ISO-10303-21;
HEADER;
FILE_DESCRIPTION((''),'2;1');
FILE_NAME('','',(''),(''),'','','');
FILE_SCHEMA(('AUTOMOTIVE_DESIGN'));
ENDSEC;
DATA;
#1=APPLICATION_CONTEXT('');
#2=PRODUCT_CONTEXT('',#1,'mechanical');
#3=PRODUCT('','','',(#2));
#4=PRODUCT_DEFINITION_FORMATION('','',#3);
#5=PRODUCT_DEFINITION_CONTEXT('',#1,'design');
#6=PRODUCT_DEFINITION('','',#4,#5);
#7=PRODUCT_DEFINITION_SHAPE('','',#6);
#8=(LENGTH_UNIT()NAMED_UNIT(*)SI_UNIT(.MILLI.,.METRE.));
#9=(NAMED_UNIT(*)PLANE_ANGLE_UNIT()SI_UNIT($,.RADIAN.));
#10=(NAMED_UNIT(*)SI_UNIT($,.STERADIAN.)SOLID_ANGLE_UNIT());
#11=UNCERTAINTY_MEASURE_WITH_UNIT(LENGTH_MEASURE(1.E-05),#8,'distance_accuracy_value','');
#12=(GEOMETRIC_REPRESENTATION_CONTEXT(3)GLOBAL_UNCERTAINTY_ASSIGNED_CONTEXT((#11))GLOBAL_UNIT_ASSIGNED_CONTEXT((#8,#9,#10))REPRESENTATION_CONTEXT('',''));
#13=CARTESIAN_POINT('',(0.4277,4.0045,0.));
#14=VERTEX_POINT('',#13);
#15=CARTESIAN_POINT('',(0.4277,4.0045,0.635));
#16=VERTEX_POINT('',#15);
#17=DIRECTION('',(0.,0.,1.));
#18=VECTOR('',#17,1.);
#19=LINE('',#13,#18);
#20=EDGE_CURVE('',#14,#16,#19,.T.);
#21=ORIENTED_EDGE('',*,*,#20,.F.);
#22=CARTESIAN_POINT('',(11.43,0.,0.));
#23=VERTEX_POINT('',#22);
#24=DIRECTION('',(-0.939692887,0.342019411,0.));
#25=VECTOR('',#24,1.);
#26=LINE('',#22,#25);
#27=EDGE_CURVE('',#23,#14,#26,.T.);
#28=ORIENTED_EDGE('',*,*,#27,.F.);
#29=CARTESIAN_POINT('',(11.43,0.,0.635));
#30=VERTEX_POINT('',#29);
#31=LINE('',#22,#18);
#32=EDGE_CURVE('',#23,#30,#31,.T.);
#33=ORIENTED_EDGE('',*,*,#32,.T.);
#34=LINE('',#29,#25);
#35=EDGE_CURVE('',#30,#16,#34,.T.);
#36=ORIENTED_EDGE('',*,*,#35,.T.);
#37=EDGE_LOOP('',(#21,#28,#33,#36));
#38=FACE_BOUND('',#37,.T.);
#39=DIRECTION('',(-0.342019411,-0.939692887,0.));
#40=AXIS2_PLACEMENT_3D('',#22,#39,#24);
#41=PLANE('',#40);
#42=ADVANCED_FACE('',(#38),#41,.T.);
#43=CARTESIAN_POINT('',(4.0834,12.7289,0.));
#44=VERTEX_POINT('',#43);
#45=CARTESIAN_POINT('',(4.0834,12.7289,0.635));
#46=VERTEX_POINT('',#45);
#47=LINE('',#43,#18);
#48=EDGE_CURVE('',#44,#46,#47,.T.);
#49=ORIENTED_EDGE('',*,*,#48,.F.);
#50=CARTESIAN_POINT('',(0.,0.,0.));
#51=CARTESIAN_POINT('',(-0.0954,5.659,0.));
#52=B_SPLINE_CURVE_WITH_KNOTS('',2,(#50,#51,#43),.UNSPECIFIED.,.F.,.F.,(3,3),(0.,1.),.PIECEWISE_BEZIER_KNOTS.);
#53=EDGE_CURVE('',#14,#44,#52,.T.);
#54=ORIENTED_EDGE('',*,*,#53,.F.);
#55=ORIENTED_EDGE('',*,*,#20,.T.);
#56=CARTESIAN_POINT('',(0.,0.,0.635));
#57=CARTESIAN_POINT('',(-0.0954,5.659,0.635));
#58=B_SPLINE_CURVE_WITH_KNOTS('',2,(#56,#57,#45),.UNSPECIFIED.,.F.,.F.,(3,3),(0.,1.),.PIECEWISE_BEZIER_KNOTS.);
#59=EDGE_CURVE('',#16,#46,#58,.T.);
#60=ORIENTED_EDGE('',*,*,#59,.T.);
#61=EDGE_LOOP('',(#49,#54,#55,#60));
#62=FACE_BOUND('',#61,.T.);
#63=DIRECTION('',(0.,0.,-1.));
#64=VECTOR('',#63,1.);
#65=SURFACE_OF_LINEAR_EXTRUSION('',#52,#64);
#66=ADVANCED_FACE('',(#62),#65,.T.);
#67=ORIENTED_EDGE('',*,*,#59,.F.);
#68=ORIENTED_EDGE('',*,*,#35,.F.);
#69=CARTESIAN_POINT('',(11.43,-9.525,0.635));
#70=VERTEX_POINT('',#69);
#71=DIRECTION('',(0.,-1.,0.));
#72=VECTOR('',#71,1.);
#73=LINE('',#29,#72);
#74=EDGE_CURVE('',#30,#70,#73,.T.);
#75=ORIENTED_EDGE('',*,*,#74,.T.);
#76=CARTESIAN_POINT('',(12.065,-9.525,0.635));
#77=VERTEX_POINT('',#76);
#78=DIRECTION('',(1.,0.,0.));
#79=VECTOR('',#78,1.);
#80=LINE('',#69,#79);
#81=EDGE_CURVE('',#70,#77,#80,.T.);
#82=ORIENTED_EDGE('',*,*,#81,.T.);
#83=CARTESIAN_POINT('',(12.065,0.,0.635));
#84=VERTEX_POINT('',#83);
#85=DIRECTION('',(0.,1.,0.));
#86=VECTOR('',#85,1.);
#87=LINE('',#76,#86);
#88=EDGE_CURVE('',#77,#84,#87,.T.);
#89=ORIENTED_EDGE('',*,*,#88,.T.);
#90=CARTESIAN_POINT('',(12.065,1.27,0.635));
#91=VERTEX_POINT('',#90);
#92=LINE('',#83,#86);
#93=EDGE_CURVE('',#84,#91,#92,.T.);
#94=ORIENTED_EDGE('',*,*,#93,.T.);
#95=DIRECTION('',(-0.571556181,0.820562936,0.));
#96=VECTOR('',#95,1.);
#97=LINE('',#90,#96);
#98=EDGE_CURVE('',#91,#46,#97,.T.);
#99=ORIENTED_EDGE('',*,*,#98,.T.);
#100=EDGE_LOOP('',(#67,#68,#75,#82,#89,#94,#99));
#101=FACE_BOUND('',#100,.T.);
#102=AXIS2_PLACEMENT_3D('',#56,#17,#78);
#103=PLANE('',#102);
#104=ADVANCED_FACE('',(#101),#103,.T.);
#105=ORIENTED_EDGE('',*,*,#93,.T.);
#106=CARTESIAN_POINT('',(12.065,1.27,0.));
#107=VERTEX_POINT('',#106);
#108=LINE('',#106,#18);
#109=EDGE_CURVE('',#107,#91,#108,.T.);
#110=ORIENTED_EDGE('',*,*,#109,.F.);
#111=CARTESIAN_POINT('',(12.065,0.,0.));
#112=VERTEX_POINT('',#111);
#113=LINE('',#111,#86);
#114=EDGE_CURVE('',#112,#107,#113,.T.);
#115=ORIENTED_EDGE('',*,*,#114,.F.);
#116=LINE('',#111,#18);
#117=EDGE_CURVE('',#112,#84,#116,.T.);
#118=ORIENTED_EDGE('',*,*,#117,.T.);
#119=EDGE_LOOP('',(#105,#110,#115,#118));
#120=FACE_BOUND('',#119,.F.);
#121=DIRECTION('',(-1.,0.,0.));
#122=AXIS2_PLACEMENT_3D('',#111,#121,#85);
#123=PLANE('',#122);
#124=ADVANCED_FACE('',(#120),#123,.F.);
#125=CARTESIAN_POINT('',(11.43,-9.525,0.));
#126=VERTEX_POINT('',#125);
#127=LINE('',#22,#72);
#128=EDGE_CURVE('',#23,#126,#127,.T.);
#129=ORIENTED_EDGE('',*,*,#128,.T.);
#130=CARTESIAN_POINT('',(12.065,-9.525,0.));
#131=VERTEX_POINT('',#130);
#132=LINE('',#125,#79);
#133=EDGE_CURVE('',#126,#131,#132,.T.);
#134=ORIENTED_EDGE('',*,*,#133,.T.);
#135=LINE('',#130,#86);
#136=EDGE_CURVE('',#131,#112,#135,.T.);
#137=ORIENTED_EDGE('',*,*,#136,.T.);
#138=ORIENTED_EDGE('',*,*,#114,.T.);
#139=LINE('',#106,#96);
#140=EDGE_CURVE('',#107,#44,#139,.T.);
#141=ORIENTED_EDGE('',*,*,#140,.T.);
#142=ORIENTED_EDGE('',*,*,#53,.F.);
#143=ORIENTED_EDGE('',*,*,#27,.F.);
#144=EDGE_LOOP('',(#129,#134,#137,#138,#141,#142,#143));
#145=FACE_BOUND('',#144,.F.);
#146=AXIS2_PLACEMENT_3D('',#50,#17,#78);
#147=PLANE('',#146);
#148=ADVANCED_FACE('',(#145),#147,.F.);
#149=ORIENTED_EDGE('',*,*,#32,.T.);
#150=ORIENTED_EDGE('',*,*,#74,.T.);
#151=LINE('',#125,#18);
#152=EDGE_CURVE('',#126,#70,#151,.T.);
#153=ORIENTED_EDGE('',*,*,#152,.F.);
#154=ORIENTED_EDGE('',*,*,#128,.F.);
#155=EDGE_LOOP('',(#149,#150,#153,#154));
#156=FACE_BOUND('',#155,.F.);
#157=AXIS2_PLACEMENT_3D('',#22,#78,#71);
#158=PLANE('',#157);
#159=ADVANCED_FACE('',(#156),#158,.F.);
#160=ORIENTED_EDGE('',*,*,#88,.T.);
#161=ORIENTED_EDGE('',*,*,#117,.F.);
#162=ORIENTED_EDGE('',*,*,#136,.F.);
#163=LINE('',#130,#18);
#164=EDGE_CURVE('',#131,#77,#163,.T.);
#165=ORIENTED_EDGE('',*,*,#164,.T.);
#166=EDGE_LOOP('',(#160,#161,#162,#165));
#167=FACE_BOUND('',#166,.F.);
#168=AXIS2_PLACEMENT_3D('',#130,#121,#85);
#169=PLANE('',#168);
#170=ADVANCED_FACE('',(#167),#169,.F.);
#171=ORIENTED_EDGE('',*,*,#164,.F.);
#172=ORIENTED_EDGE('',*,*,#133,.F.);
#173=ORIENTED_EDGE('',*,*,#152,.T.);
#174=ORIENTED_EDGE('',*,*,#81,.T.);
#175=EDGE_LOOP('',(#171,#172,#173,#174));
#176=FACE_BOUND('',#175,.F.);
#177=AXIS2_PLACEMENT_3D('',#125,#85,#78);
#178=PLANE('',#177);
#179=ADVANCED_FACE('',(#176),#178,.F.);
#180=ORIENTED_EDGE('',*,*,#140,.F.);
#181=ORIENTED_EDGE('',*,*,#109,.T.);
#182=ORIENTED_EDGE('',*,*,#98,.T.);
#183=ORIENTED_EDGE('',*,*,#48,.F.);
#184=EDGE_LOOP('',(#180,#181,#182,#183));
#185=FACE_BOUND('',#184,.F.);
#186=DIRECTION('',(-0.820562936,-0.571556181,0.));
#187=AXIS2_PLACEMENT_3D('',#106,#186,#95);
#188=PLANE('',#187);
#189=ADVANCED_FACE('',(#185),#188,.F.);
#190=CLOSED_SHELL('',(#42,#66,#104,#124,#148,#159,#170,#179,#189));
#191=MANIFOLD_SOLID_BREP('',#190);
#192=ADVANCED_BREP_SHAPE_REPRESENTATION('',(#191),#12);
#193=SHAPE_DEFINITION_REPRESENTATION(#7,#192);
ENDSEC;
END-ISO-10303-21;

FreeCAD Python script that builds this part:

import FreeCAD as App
import Part
import Sketcher
from FreeCAD import Vector
Q = App.Units.Quantity

doc = App.newDocument("Part")
body = doc.addObject("PartDesign::Body", "Body")

# Sketch on XY plane
sketch1 = doc.addObject("Sketcher::SketchObject", "Sketch")
body.addObject(sketch1)
sketch1.AttachmentSupport = (doc.XY_Plane, [""])
sketch1.MapMode = "FlatFace"
sketch1.addGeometry(Part.BSplineCurve([Vector(0.427738, 4.004492, 0), Vector(1.323102, 8.058891, 0), Vector(4.0834, 12.7289, 0)], [3, 3], [0.339451925, 1], False, 2, [1, 1, 1], False), False)
sketch1.addGeometry(Part.LineSegment(Vector(0.4277, 4.0045, 0), Vector(11.43, 0, 0)), False)
sketch1.addGeometry(Part.LineSegment(Vector(11.43, 0, 0), Vector(11.43, -9.525, 0)), False)
sketch1.addGeometry(Part.LineSegment(Vector(11.43, -9.525, 0), Vector(12.065, -9.525, 0)), False)
sketch1.addGeometry(Part.LineSegment(Vector(12.065, -9.525, 0), Vector(12.065, 1.27, 0)), False)
sketch1.addGeometry(Part.LineSegment(Vector(12.065, 1.27, 0), Vector(4.0834, 12.7289, 0)), False)
sketch1.addConstraint(Sketcher.Constraint("Block", 0))
sketch1.addConstraint(Sketcher.Constraint("Coincident", 0, 1, 1, 1))
sketch1.addConstraint(Sketcher.Constraint("Coincident", 1, 2, 2, 1))
sketch1.addConstraint(Sketcher.Constraint("Coincident", 2, 2, 3, 1))
sketch1.addConstraint(Sketcher.Constraint("Coincident", 3, 2, 4, 1))
sketch1.addConstraint(Sketcher.Constraint("Coincident", 4, 2, 5, 1))
sketch1.addConstraint(Sketcher.Constraint("Coincident", 5, 2, 0, 2))
sketch1.addConstraint(Sketcher.Constraint("Vertical", 2))
sketch1.addConstraint(Sketcher.Constraint("Horizontal", 3))
sketch1.addConstraint(Sketcher.Constraint("Vertical", 4))
sketch1.addConstraint(Sketcher.Constraint("PointOnObject", 1, 2, -1))
sketch1.addConstraint(Sketcher.Constraint("Angle", 1, Q("-20 deg")))
sketch1.addConstraint(Sketcher.Constraint("DistanceX", 3, 1, 3, 2, Q("0.025 in")))
sketch1.addConstraint(Sketcher.Constraint("DistanceY", 2, 2, 2, 1, Q("0.375 in")))
sketch1.addConstraint(Sketcher.Constraint("DistanceY", -1, 1, 4, 2, Q("0.05 in")))
pad1 = doc.addObject("PartDesign::Pad", "Pad")
body.addObject(pad1)
pad1.Profile = sketch1
pad1.Length = Q("0.025 in")

doc.recompute()
